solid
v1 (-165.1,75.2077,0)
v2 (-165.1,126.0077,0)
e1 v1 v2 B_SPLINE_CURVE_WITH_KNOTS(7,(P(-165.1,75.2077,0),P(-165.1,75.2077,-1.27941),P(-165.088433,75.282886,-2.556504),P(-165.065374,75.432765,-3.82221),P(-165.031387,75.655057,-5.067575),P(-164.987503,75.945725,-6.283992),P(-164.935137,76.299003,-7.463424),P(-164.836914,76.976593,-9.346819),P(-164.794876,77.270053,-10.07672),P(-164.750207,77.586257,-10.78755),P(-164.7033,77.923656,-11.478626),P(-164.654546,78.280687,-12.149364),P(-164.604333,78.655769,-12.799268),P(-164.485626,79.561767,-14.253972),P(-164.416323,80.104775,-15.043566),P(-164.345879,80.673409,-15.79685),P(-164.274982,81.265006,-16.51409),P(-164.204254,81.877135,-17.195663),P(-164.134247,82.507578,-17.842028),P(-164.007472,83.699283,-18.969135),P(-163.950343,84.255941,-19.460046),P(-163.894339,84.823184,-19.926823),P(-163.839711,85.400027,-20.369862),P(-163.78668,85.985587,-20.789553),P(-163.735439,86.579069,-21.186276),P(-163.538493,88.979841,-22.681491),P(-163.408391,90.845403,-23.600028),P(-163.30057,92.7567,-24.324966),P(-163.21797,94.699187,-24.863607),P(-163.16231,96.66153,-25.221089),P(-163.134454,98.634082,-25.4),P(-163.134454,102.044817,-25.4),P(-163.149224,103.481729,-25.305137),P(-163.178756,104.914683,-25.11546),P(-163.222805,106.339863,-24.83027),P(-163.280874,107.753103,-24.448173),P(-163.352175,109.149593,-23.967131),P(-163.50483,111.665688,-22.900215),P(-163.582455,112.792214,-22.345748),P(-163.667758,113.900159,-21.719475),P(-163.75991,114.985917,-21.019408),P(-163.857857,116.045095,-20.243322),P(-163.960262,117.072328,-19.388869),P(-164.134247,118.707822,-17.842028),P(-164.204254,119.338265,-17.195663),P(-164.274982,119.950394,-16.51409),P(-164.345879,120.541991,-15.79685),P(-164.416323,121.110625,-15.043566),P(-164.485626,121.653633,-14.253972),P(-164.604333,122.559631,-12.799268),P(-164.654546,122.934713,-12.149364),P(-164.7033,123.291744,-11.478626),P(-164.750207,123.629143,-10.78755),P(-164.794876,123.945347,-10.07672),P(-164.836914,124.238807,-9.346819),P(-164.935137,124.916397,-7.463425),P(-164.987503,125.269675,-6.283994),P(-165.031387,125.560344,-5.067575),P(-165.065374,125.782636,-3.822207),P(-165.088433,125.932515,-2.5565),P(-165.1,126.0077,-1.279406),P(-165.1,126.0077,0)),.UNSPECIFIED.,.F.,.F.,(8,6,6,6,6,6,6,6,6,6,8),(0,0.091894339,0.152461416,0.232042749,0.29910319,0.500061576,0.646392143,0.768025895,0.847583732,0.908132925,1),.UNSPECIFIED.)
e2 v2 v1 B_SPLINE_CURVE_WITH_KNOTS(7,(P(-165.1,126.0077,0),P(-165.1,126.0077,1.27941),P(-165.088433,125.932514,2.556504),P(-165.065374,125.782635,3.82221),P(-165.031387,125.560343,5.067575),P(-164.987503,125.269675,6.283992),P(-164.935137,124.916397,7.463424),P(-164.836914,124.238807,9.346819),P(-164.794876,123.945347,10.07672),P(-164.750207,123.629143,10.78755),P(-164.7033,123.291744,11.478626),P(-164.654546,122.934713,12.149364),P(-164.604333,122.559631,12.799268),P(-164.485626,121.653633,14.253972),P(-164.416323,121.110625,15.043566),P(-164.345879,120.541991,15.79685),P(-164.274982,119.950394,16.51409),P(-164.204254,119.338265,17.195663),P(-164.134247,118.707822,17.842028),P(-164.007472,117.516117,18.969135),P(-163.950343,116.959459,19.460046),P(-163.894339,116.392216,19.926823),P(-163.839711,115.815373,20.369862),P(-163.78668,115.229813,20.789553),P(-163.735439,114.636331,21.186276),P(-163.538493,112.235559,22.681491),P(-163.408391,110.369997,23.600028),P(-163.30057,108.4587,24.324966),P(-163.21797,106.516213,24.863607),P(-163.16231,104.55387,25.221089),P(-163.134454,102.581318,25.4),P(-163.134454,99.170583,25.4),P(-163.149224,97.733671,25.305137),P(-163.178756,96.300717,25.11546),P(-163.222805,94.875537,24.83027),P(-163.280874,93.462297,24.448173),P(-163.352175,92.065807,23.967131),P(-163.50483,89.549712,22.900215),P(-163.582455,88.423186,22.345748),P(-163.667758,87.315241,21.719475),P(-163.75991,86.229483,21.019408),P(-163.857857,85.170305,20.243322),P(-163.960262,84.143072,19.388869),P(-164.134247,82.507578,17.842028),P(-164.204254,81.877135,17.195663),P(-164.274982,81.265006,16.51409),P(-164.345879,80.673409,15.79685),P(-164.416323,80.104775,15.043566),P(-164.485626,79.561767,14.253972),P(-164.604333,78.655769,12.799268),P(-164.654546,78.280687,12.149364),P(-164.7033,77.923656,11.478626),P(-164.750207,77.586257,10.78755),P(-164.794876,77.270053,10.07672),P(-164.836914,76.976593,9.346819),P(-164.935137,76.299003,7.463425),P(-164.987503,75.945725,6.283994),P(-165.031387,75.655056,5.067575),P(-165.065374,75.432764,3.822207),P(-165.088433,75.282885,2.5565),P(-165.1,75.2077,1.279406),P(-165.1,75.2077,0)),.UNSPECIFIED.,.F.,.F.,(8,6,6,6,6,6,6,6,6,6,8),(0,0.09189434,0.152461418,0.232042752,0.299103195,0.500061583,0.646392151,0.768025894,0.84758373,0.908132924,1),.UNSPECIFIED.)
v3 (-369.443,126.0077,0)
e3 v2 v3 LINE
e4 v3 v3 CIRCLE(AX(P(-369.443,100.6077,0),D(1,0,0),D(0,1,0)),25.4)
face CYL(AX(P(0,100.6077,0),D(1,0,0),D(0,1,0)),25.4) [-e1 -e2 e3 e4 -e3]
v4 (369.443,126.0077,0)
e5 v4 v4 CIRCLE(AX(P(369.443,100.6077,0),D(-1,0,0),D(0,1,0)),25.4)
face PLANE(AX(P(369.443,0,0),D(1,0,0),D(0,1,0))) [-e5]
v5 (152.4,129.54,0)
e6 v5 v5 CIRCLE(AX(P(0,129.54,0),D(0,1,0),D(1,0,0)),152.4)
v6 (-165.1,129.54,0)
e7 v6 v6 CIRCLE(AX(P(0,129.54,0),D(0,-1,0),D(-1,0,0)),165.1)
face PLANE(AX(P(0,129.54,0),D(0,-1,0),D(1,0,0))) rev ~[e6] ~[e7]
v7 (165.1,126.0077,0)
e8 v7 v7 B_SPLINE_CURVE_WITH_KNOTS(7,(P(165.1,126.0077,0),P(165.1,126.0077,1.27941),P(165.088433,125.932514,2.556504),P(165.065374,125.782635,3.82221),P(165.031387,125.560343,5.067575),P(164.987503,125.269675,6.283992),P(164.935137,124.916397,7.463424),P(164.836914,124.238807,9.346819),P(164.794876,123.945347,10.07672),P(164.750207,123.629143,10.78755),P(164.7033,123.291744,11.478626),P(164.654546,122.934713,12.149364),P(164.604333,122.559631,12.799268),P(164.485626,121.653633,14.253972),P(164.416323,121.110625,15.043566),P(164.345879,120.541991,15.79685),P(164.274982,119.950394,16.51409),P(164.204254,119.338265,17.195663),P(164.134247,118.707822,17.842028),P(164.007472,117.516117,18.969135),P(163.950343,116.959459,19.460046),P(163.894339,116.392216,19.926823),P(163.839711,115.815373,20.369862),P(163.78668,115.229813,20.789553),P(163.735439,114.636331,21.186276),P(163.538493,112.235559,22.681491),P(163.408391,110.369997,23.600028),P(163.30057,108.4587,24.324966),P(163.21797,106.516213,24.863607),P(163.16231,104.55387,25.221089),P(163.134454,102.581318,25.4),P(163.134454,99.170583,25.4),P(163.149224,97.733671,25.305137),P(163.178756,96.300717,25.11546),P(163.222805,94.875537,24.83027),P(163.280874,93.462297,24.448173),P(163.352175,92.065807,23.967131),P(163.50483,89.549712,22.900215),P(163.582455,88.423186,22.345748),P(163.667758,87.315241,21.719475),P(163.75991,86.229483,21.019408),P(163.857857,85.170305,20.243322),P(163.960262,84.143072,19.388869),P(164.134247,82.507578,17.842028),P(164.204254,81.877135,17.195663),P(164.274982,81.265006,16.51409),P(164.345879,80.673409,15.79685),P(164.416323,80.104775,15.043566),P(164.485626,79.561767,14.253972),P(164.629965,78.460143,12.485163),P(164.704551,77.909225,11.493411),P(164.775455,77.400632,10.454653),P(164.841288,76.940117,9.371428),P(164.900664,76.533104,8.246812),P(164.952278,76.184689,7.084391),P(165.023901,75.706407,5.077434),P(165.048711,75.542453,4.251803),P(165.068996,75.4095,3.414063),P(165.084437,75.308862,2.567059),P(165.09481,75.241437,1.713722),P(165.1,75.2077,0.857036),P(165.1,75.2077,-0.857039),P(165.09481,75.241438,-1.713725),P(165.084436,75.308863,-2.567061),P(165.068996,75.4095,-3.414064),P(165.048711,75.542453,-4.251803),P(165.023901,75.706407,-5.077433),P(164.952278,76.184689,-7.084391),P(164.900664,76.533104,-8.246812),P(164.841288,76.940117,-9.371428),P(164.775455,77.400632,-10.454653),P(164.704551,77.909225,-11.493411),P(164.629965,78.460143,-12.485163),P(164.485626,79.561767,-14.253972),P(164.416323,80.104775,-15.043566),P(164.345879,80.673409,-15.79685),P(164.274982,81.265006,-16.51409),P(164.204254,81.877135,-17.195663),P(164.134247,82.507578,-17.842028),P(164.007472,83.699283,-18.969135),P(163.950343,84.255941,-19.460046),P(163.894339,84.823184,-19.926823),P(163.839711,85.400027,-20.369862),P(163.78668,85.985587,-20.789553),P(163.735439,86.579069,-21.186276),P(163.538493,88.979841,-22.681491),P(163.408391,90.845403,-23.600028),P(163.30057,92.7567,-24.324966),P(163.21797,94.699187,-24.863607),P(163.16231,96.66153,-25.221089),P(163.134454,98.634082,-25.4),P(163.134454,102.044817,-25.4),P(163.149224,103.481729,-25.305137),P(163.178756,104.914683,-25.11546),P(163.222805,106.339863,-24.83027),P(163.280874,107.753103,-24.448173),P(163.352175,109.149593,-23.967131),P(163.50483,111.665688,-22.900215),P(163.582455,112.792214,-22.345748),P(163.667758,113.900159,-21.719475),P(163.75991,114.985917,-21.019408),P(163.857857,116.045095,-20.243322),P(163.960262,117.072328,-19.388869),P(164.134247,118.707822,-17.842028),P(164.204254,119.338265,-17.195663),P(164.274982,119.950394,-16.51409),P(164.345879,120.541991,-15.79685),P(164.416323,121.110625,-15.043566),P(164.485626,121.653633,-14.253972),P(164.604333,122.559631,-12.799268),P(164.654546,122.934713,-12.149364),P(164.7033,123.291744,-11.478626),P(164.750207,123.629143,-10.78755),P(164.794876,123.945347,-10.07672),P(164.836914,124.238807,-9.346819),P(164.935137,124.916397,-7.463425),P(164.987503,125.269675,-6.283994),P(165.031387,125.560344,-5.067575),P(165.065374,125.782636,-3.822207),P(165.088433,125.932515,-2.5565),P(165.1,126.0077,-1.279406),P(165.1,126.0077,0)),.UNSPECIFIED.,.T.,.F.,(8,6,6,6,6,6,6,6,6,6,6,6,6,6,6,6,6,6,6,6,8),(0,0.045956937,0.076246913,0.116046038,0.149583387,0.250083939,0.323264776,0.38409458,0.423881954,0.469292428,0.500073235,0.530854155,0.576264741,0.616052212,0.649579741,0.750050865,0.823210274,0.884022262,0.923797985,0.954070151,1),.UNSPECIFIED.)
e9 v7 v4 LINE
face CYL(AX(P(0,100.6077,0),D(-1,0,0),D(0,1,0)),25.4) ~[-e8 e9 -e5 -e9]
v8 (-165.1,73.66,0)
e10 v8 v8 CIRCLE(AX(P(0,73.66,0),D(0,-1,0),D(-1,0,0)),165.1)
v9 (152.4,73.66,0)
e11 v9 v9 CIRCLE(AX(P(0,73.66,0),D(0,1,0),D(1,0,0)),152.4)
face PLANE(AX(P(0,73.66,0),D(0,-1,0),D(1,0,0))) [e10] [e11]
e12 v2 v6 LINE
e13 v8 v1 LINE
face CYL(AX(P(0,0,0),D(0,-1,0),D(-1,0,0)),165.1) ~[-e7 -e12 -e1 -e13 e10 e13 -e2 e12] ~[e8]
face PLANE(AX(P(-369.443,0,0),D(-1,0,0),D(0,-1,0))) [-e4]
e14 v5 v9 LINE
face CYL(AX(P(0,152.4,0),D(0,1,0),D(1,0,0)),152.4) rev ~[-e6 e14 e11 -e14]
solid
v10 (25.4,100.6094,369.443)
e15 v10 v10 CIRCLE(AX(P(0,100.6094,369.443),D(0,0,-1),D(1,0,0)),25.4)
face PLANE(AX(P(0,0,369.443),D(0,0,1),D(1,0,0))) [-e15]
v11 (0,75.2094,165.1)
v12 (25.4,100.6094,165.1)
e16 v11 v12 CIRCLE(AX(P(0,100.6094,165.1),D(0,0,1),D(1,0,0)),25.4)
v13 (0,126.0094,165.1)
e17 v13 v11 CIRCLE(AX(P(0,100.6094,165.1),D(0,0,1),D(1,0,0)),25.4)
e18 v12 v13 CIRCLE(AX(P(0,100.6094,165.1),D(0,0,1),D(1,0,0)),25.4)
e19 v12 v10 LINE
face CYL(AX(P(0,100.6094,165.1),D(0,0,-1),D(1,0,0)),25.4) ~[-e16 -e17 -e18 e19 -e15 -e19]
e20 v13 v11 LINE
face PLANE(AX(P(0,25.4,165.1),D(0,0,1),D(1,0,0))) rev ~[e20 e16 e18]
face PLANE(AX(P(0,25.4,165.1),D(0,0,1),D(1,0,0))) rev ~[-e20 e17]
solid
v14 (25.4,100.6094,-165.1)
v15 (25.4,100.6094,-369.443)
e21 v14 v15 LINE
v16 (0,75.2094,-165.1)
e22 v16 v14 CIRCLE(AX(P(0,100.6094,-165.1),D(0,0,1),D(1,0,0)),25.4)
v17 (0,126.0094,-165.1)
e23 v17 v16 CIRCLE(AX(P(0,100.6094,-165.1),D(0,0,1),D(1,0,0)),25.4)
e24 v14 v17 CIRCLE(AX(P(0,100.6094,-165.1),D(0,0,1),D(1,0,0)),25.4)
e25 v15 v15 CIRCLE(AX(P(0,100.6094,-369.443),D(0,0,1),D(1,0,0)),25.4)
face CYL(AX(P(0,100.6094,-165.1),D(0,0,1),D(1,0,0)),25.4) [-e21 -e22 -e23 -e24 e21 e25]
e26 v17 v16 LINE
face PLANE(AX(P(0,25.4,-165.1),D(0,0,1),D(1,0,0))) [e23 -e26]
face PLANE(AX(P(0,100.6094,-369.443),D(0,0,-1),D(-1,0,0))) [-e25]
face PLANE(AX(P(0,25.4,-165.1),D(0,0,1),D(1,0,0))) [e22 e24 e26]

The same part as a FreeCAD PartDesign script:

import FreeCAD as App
import Part
import Sketcher

V = App.Vector
Q = App.Units.Quantity


def add_polygon(sketch, points):
    """Adds a closed chain of lines whose ends are joined by coincident constraints."""
    first, n = sketch.GeometryCount, len(points)
    for a, b in zip(points, points[1:] + points[:1]):
        sketch.addGeometry(Part.LineSegment(App.Vector(*a, 0), App.Vector(*b, 0)), False)
    for i in range(n):
        sketch.addConstraint(Sketcher.Constraint("Coincident", first + i, 2, first + (i + 1) % n, 1))

doc = App.newDocument("Part")
body = doc.addObject("PartDesign::Body", "Body")
body.AllowCompound = True

# Sketch on XZ plane
sketch1 = doc.addObject("Sketcher::SketchObject", "Sketch")
body.addObject(sketch1)
sketch1.AttachmentSupport = (doc.XZ_Plane, [""])
sketch1.MapMode = "FlatFace"
sketch1.addGeometry(Part.Circle(V(0, 0, 0), V(0, 0, 1), 165), False)
sketch1.addGeometry(Part.Circle(V(0, 0, 0), V(0, 0, 1), 64), False)
sketch1.addConstraint(Sketcher.Constraint("Coincident", 0, 3, -1, 1))
sketch1.addConstraint(Sketcher.Constraint("Coincident", 1, 3, -1, 1))
sketch1.addConstraint(Sketcher.Constraint("Diameter", 0, Q("13 in")))
sketch1.addConstraint(Sketcher.Constraint("Diameter", 1, Q("5 in")))
pad1 = doc.addObject("PartDesign::Pad", "Pad")
body.addObject(pad1)
pad1.Profile = sketch1
pad1.Length = Q("6 in")
pad1.Reversed = True

# Sketch on YZ plane
sketch2 = doc.addObject("Sketcher::SketchObject", "Sketch001")
body.addObject(sketch2)
sketch2.AttachmentSupport = (doc.YZ_Plane, [""])
sketch2.MapMode = "FlatFace"
sketch2.addGeometry(Part.Circle(V(101, 0, 0), V(0, 0, 1), 25), False)
sketch2.addConstraint(Sketcher.Constraint("PointOnObject", 0, 3, -1))
sketch2.addConstraint(Sketcher.Constraint("Diameter", 0, Q("2 in")))
sketch2.addConstraint(Sketcher.Constraint("DistanceX", -1, 1, 0, 3, Q("100.6077 mm")))
pad2 = doc.addObject("PartDesign::Pad", "Pad001")
body.addObject(pad2)
pad2.Profile = sketch2
pad2.Length = Q("35 in")
pad2.Midplane = True

# Sketch on XZ plane
sketch3 = doc.addObject("Sketcher::SketchObject", "Sketch002")
body.addObject(sketch3)
sketch3.AttachmentSupport = (doc.XZ_Plane, [""])
sketch3.MapMode = "FlatFace"
sketch3.AttachmentOffset = App.Placement(V(0, 0, -6 * 25.4), App.Rotation())
sketch3.addGeometry(Part.Circle(V(0, 0, 0), V(0, 0, 1), 152), False)
sketch3.addConstraint(Sketcher.Constraint("Coincident", 0, 3, -1, 1))
sketch3.addConstraint(Sketcher.Constraint("Diameter", 0, Q("12 in")))
pocket1 = doc.addObject("PartDesign::Pocket", "Pocket")
body.addObject(pocket1)
pocket1.Profile = sketch3
pocket1.Type = "ThroughAll"
pocket1.Reversed = True

# Sketch on XZ plane
sketch4 = doc.addObject("Sketcher::SketchObject", "Sketch003")
body.addObject(sketch4)
sketch4.AttachmentSupport = (doc.XZ_Plane, [""])
sketch4.MapMode = "FlatFace"
sketch4.AttachmentOffset = App.Placement(V(0, 0, -6 * 25.4), App.Rotation())
sketch4.addGeometry(Part.Circle(V(0, 0, 0), V(0, 0, 1), 165), False)
sketch4.addConstraint(Sketcher.Constraint("Coincident", 0, 3, -1, 1))
sketch4.addConstraint(Sketcher.Constraint("Diameter", 0, Q("13 in")))
pad3 = doc.addObject("PartDesign::Pad", "Pad002")
body.addObject(pad3)
pad3.Profile = sketch4
pad3.Length = Q("2 in")
pad3.Reversed = True
pad3.TaperAngle = -50

# Sketch on XY plane
sketch5 = doc.addObject("Sketcher::SketchObject", "Sketch004")
body.addObject(sketch5)
sketch5.AttachmentSupport = (doc.XY_Plane, [""])
sketch5.MapMode = "FlatFace"
sketch5.AttachmentOffset = App.Placement(V(0, 0, 6.5 * 25.4), App.Rotation())
sketch5.addGeometry(Part.Circle(V(0, 101, 0), V(0, 0, 1), 25), False)
sketch5.addConstraint(Sketcher.Constraint("PointOnObject", 0, 3, -2))
sketch5.addConstraint(Sketcher.Constraint("Diameter", 0, Q("2 in")))
sketch5.addConstraint(Sketcher.Constraint("DistanceY", -1, 1, 0, 3, Q("3.961 in")))
pad4 = doc.addObject("PartDesign::Pad", "Pad003")
body.addObject(pad4)
pad4.Profile = sketch5
pad4.Length = Q("11.045 in")

# Sketch on XY plane
sketch6 = doc.addObject("Sketcher::SketchObject", "Sketch005")
body.addObject(sketch6)
sketch6.AttachmentSupport = (doc.XY_Plane, [""])
sketch6.MapMode = "FlatFace"
sketch6.AttachmentOffset = App.Placement(V(0, 0, -6.5 * 25.4), App.Rotation())
sketch6.addGeometry(Part.Circle(V(0, 101, 0), V(0, 0, 1), 25), False)
sketch6.addConstraint(Sketcher.Constraint("PointOnObject", 0, 3, -2))
sketch6.addConstraint(Sketcher.Constraint("Diameter", 0, Q("2 in")))
sketch6.addConstraint(Sketcher.Constraint("DistanceY", -1, 1, 0, 3, Q("3.961 in")))
pad5 = doc.addObject("PartDesign::Pad", "Pad004")
body.addObject(pad5)
pad5.Profile = sketch6
pad5.Length = Q("11.045 in")
pad5.Reversed = True

# Sketch on XZ plane
sketch7 = doc.addObject("Sketcher::SketchObject", "Sketch006")
body.addObject(sketch7)
sketch7.AttachmentSupport = (doc.XZ_Plane, [""])
sketch7.MapMode = "FlatFace"
sketch7.AttachmentOffset = App.Placement(V(0, 0, -6 * 25.4), App.Rotation())
add_polygon(sketch7, [(-199, 211), (-199, -201), (235, -201), (235, 211)])  # lines 0-3
sketch7.addConstraint(Sketcher.Constraint("Vertical", 0))
sketch7.addConstraint(Sketcher.Constraint("Horizontal", 1))
sketch7.addConstraint(Sketcher.Constraint("Vertical", 2))
sketch7.addConstraint(Sketcher.Constraint("Horizontal", 3))
sketch7.addConstraint(Sketcher.Constraint("DistanceX", 1, 1, 1, 2, Q("17.0876 in")))
sketch7.addConstraint(Sketcher.Constraint("DistanceY", 0, 2, 0, 1, Q("411.9885 mm")))
sketch7.addConstraint(Sketcher.Constraint("DistanceY", 0, 2, -1, 1, Q("7.9214 in")))
sketch7.addConstraint(Sketcher.Constraint("DistanceX", 0, 2, -1, 1, Q("199.2875 mm")))
pocket2 = doc.addObject("PartDesign::Pocket", "Pocket001")
body.addObject(pocket2)
pocket2.Profile = sketch7
pocket2.Length = Q("5 in")

# Sketch on XZ plane
sketch8 = doc.addObject("Sketcher::SketchObject", "Sketch007")
body.addObject(sketch8)
sketch8.AttachmentSupport = (doc.XZ_Plane, [""])
sketch8.MapMode = "FlatFace"
sketch8.AttachmentOffset = App.Placement(V(0, 0, -2.5 * 25.4), App.Rotation())
add_polygon(sketch8, [(-190, 199), (-190, -194), (216, -194), (216, 199)])  # lines 0-3
sketch8.addConstraint(Sketcher.Constraint("Vertical", 0))
sketch8.addConstraint(Sketcher.Constraint("Horizontal", 1))
sketch8.addConstraint(Sketcher.Constraint("Vertical", 2))
sketch8.addConstraint(Sketcher.Constraint("Horizontal", 3))
sketch8.addConstraint(Sketcher.Constraint("DistanceY", 0, 2, 0, 1, Q("15.4656 in")))
sketch8.addConstraint(Sketcher.Constraint("DistanceX", 0, 2, -1, 1, Q("7.468752 in")))
sketch8.addConstraint(Sketcher.Constraint("DistanceX", 1, 1, 1, 2, Q("405.2817 mm")))
sketch8.addConstraint(Sketcher.Constraint("DistanceY", 0, 2, -1, 1, Q("193.5388 mm")))
pocket3 = doc.addObject("PartDesign::Pocket", "Pocket002")
body.addObject(pocket3)
pocket3.Profile = sketch8
pocket3.Length = Q("5 in")
pocket3.Reversed = True

# Sketch on XZ plane
sketch9 = doc.addObject("Sketcher::SketchObject", "Sketch008")
body.addObject(sketch9)
sketch9.AttachmentSupport = (doc.XZ_Plane, [""])
sketch9.MapMode = "FlatFace"
sketch9.AttachmentOffset = App.Placement(V(0, 0, -6 * 25.4), App.Rotation())
add_polygon(sketch9, [(-191, 204), (-191, -206), (200, -206), (200, 204)])  # lines 0-3
sketch9.addConstraint(Sketcher.Constraint("Vertical", 0))
sketch9.addConstraint(Sketcher.Constraint("Horizontal", 1))
sketch9.addConstraint(Sketcher.Constraint("Vertical", 2))
sketch9.addConstraint(Sketcher.Constraint("Horizontal", 3))
sketch9.addConstraint(Sketcher.Constraint("DistanceY", 0, 2, 0, 1, Q("16.1429 in")))
sketch9.addConstraint(Sketcher.Constraint("DistanceX", 1, 1, 1, 2, Q("391.3265 mm")))
sketch9.addConstraint(Sketcher.Constraint("DistanceX", -1, 1, 1, 2, Q("7.8758 in")))
sketch9.addConstraint(Sketcher.Constraint("DistanceY", 0, 2, -1, 1, Q("206.2668 mm")))
pocket4 = doc.addObject("PartDesign::Pocket", "Pocket003")
body.addObject(pocket4)
pocket4.Profile = sketch9
pocket4.Length = Q("0.9 in")
pocket4.Reversed = True

# Sketch on XZ plane
sketch10 = doc.addObject("Sketcher::SketchObject", "Sketch009")
body.addObject(sketch10)
sketch10.AttachmentSupport = (doc.XZ_Plane, [""])
sketch10.MapMode = "FlatFace"
sketch10.AttachmentOffset = App.Placement(V(0, 0, -2.5 * 25.4), App.Rotation())
add_polygon(sketch10, [(186, 197), (-192, 197), (-192, -195), (186, -195)])  # lines 0-3
sketch10.addConstraint(Sketcher.Constraint("Horizontal", 0))
sketch10.addConstraint(Sketcher.Constraint("Vertical", 1))
sketch10.addConstraint(Sketcher.Constraint("Horizontal", 2))
sketch10.addConstraint(Sketcher.Constraint("Vertical", 3))
sketch10.addConstraint(Sketcher.Constraint("DistanceY", 1, 2, 1, 1, Q("15.4158 in")))
sketch10.addConstraint(Sketcher.Constraint("DistanceX", 0, 2, 0, 1, Q("377.697 mm")))
sketch10.addConstraint(Sketcher.Constraint("DistanceX", 0, 2, -1, 1, Q("192.0144 mm")))
sketch10.addConstraint(Sketcher.Constraint("DistanceY", -1, 1, 0, 2, Q("196.808 mm")))
pocket5 = doc.addObject("PartDesign::Pocket", "Pocket004")
body.addObject(pocket5)
pocket5.Profile = sketch10
pocket5.Length = Q("0.4 in")

# Sketch on XY plane
sketch11 = doc.addObject("Sketcher::SketchObject", "Sketch010")
body.addObject(sketch11)
sketch11.AttachmentSupport = (doc.XY_Plane, [""])
sketch11.MapMode = "FlatFace"
sketch11.AttachmentOffset = App.Placement(V(0, 0, 17.545 * 25.4), App.Rotation())
add_polygon(sketch11, [(71, 140), (-48, 140), (-48, 51), (71, 51)])  # lines 0-3
sketch11.addConstraint(Sketcher.Constraint("Horizontal", 0))
sketch11.addConstraint(Sketcher.Constraint("Vertical", 1))
sketch11.addConstraint(Sketcher.Constraint("Horizontal", 2))
sketch11.addConstraint(Sketcher.Constraint("Vertical", 3))
sketch11.addConstraint(Sketcher.Constraint("DistanceX", 0, 2, 0, 1, Q("118.814 mm")))
sketch11.addConstraint(Sketcher.Constraint("DistanceY", 1, 2, 1, 1, Q("89.1342 mm")))
sketch11.addConstraint(Sketcher.Constraint("DistanceX", -1, 1, 2, 2, Q("2.8004 in")))
sketch11.addConstraint(Sketcher.Constraint("DistanceY", -1, 1, 0, 2, Q("139.8876 mm")))
pocket6 = doc.addObject("PartDesign::Pocket", "Pocket005")
body.addObject(pocket6)
pocket6.Profile = sketch11
pocket6.Length = Q("3 in")

# Sketch on YZ plane
sketch12 = doc.addObject("Sketcher::SketchObject", "Sketch011")
body.addObject(sketch12)
sketch12.AttachmentSupport = (doc.YZ_Plane, [""])
sketch12.MapMode = "FlatFace"
sketch12.AttachmentOffset = App.Placement(V(0, 0, -17.545 * 25.4), App.Rotation())
add_polygon(sketch12, [(-28, -80), (-28, 69), (175, 69), (175, -80)])  # lines 0-3
sketch12.addConstraint(Sketcher.Constraint("Vertical", 0))
sketch12.addConstraint(Sketcher.Constraint("Horizontal", 1))
sketch12.addConstraint(Sketcher.Constraint("Vertical", 2))
sketch12.addConstraint(Sketcher.Constraint("Horizontal", 3))
sketch12.addConstraint(Sketcher.Constraint("DistanceX", 1, 1, 1, 2, Q("203.2574 mm")))
sketch12.addConstraint(Sketcher.Constraint("DistanceY", 0, 1, 0, 2, Q("148.813 mm")))
sketch12.addConstraint(Sketcher.Constraint("DistanceX", 0, 2, -1, 1, Q("28.4387 mm")))
sketch12.addConstraint(Sketcher.Constraint("DistanceY", -1, 1, 0, 2, Q("69.0414 mm")))
pocket7 = doc.addObject("PartDesign::Pocket", "Pocket006")
body.addObject(pocket7)
pocket7.Profile = sketch12
pocket7.Length = Q("3 in")
pocket7.Reversed = True

# Sketch on XY plane
sketch13 = doc.addObject("Sketcher::SketchObject", "Sketch012")
body.addObject(sketch13)
sketch13.AttachmentSupport = (doc.XY_Plane, [""])
sketch13.MapMode = "FlatFace"
sketch13.AttachmentOffset = App.Placement(V(0, 0, -17.545 * 25.4), App.Rotation())
add_polygon(sketch13, [(-49, 176), (46, 176), (46, 29), (-49, 29)])  # lines 0-3
sketch13.addConstraint(Sketcher.Constraint("Horizontal", 0))
sketch13.addConstraint(Sketcher.Constraint("Vertical", 1))
sketch13.addConstraint(Sketcher.Constraint("Horizontal", 2))
sketch13.addConstraint(Sketcher.Constraint("Vertical", 3))
sketch13.addConstraint(Sketcher.Constraint("DistanceX", 0, 1, 0, 2, Q("3.7488 in")))
sketch13.addConstraint(Sketcher.Constraint("DistanceY", 1, 2, 1, 1, Q("5.7674 in")))
sketch13.addConstraint(Sketcher.Constraint("DistanceX", -1, 1, 0, 2, Q("1.8023 in")))
sketch13.addConstraint(Sketcher.Constraint("DistanceY", -1, 1, 0, 2, Q("175.79 mm")))
pocket8 = doc.addObject("PartDesign::Pocket", "Pocket007")
body.addObject(pocket8)
pocket8.Profile = sketch13
pocket8.Length = Q("3 in")
pocket8.Reversed = True

# Sketch on YZ plane
sketch14 = doc.addObject("Sketcher::SketchObject", "Sketch013")
body.addObject(sketch14)
sketch14.AttachmentSupport = (doc.YZ_Plane, [""])
sketch14.MapMode = "FlatFace"
sketch14.AttachmentOffset = App.Placement(V(0, 0, 17.545 * 25.4), App.Rotation())
add_polygon(sketch14, [(0, -97), (168, -97), (168, 73), (0, 73)])  # lines 0-3
sketch14.addConstraint(Sketcher.Constraint("Horizontal", 0))
sketch14.addConstraint(Sketcher.Constraint("Vertical", 1))
sketch14.addConstraint(Sketcher.Constraint("Horizontal", 2))
sketch14.addConstraint(Sketcher.Constraint("Vertical", 3))
sketch14.addConstraint(Sketcher.Constraint("PointOnObject", 2, 2, -2))
sketch14.addConstraint(Sketcher.Constraint("DistanceX", 0, 1, 0, 2, Q("6.6325 in")))
sketch14.addConstraint(Sketcher.Constraint("DistanceY", 1, 1, 1, 2, Q("6.7046 in")))
sketch14.addConstraint(Sketcher.Constraint("DistanceY", 0, 2, -1, 1, Q("3.8209 in")))
pocket9 = doc.addObject("PartDesign::Pocket", "Pocket008")
body.addObject(pocket9)
pocket9.Profile = sketch14
pocket9.Length = Q("3 in")

doc.recompute()
